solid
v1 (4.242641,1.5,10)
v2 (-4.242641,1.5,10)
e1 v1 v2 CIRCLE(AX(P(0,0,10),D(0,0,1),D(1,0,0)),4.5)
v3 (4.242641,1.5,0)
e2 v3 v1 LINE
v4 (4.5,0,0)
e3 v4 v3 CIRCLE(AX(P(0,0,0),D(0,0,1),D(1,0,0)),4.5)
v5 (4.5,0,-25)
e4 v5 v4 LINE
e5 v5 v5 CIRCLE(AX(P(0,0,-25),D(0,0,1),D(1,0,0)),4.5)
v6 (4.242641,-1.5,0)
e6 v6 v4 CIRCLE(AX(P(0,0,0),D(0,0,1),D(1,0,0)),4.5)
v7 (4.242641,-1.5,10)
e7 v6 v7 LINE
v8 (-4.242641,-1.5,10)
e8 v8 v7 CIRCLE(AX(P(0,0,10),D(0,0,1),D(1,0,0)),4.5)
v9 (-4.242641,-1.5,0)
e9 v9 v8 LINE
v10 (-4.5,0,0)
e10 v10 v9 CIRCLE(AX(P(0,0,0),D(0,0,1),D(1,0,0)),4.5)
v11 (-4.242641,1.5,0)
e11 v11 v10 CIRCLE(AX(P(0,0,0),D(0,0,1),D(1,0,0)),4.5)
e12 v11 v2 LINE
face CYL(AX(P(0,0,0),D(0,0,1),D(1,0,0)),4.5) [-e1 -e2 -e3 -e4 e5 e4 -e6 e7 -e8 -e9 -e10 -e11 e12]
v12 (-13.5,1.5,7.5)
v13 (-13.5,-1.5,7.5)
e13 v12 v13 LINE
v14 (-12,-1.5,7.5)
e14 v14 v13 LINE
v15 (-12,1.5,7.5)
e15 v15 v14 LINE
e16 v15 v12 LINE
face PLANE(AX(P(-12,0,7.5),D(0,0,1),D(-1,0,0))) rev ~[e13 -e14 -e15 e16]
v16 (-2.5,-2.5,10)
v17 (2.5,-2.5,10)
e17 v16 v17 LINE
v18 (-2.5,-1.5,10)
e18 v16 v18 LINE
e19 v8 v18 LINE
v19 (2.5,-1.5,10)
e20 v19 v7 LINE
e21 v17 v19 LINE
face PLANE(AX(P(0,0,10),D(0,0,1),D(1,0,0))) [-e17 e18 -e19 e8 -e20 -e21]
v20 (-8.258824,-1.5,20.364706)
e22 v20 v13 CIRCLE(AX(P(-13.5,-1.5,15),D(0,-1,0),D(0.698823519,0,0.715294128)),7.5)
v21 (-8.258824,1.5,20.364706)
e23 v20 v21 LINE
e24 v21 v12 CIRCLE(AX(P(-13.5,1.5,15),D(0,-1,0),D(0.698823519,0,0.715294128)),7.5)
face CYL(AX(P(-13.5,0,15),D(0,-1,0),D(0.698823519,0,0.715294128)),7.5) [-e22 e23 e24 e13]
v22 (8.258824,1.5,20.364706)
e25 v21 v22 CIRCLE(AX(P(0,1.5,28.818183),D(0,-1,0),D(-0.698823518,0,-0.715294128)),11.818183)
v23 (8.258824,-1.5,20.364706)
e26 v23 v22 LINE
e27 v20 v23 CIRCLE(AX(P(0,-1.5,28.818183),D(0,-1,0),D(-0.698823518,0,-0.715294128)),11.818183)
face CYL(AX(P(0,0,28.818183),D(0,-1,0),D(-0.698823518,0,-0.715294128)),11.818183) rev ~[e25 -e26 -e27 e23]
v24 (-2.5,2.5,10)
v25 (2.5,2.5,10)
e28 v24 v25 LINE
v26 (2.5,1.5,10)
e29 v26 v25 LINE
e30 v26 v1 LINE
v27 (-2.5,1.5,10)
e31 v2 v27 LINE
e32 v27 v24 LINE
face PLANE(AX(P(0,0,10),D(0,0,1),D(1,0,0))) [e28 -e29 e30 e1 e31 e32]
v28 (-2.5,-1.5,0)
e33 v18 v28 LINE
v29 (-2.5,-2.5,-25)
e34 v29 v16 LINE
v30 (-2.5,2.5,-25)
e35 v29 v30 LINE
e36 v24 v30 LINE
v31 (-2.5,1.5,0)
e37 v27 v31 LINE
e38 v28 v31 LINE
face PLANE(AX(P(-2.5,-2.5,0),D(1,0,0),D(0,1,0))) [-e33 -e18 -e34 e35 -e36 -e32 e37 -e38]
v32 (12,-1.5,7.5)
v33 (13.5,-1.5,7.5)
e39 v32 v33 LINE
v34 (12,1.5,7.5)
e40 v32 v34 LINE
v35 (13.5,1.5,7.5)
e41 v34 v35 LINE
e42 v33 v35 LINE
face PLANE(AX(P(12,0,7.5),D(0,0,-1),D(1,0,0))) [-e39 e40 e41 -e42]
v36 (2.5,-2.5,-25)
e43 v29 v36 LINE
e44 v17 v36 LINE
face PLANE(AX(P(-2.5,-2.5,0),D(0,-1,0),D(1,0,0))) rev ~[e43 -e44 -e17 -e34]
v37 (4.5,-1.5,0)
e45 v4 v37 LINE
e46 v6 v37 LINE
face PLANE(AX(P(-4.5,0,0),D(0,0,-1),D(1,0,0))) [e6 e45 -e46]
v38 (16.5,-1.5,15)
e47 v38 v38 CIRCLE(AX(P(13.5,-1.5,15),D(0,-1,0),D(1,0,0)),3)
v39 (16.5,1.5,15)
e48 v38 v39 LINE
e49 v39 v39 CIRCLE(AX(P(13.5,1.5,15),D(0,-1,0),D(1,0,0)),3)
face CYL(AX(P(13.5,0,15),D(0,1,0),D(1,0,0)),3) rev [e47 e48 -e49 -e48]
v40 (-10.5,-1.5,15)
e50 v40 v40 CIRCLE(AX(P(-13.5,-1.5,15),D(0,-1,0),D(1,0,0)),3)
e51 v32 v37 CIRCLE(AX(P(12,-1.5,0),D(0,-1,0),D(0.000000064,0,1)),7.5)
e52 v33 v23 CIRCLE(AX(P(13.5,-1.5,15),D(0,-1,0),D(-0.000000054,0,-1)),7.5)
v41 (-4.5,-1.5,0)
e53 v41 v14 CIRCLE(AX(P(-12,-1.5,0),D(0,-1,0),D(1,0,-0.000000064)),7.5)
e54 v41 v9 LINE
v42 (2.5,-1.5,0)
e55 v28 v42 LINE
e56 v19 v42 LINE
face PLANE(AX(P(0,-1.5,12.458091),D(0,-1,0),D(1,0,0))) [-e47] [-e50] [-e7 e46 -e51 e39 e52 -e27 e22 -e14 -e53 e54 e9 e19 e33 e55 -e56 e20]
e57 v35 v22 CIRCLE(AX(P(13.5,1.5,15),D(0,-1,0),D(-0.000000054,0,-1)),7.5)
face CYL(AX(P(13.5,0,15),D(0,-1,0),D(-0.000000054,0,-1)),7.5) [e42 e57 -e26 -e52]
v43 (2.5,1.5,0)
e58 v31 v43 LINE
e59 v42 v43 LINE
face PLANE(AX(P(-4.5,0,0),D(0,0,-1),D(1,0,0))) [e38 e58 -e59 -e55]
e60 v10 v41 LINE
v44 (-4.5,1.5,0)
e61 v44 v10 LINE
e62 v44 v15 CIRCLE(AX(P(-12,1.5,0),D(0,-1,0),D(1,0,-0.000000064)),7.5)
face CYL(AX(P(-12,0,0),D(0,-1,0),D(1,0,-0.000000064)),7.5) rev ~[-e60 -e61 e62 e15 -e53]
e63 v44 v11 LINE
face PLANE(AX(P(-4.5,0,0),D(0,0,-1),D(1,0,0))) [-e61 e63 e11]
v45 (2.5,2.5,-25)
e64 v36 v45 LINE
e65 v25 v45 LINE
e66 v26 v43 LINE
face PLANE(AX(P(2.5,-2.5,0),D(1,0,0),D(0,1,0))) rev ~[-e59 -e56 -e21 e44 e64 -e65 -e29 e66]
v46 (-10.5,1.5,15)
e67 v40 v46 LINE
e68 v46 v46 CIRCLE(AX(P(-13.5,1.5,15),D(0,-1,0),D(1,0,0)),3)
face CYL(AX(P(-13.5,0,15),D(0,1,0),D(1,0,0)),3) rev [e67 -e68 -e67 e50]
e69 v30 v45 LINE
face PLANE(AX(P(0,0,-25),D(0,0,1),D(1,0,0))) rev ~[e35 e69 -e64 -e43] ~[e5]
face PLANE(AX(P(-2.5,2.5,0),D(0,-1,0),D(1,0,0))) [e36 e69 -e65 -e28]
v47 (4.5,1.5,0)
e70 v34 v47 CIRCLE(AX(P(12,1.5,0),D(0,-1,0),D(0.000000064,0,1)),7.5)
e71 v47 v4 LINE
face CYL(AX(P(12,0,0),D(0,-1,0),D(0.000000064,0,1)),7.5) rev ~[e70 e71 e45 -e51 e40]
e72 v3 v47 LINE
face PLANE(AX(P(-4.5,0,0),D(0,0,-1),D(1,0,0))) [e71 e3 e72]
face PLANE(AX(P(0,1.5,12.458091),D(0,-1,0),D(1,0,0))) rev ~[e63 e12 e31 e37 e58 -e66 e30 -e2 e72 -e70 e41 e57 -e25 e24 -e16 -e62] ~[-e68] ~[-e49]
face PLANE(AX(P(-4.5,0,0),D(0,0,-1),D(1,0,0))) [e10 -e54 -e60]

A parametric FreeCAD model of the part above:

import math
import FreeCAD as App
import Part
import Sketcher
from FreeCAD import Vector
Q = App.Units.Quantity

doc = App.newDocument("Part")
body = doc.addObject("PartDesign::Body", "Body")

# Sketch on XY plane
sketch1 = body.newObject("Sketcher::SketchObject", "Sketch")
sketch1.AttachmentSupport = (doc.getObject("XY_Plane"), [""])
sketch1.MapMode = "FlatFace"
sketch1.addGeometry([
    Part.Circle(Vector(0, 0, 0), Vector(0, 0, 1), 4.5),  # 0
    Part.LineSegment(Vector(2.5, -2.5, 0), Vector(-2.5, -2.5, 0)),  # 1
    Part.LineSegment(Vector(-2.5, -2.5, 0), Vector(-2.5, 2.5, 0)),  # 2
    Part.LineSegment(Vector(-2.5, 2.5, 0), Vector(2.5, 2.5, 0)),  # 3
    Part.LineSegment(Vector(2.5, 2.5, 0), Vector(2.5, -2.5, 0)),  # 4
], False)
sketch1.addConstraint([
    Sketcher.Constraint("Coincident", 1, 2, 2, 1),
    Sketcher.Constraint("Coincident", 2, 2, 3, 1),
    Sketcher.Constraint("Coincident", 3, 2, 4, 1),
    Sketcher.Constraint("Coincident", 4, 2, 1, 1),
    Sketcher.Constraint("Horizontal", 1),
    Sketcher.Constraint("Vertical", 2),
    Sketcher.Constraint("Horizontal", 3),
    Sketcher.Constraint("Vertical", 4),
    Sketcher.Constraint("Coincident", 0, 3, -1, 1),
    Sketcher.Constraint("Symmetric", 1, 2, 3, 2, -1, 1),
    Sketcher.Constraint("Equal", 3, 2),
    Sketcher.Constraint("Diameter", 0, Q("9 mm")),
    Sketcher.Constraint("DistanceX", 1, 2, 1, 1, Q("5 mm")),
])
pad1 = body.newObject("PartDesign::Pad", "Pad")
pad1.Profile = sketch1
pad1.Type = "TwoLengths"
pad1.Length = 10
pad1.Length2 = 25

# Sketch on XZ plane
sketch2 = body.newObject("Sketcher::SketchObject", "Sketch001")
sketch2.AttachmentSupport = (doc.getObject("XZ_Plane"), [""])
sketch2.MapMode = "FlatFace"
sketch2.addGeometry([
    Part.ArcOfCircle(Part.Circle(Vector(-13.5, 15, 0), Vector(0, 0, 1), 7.5), math.radians(46), math.radians(270)),  # 0
    Part.LineSegment(Vector(-13.5, 7.5, 0), Vector(-12, 7.5, 0)),  # 1
    Part.ArcOfCircle(Part.Circle(Vector(-12, 0, 0), Vector(0, 0, 1), 7.5), math.radians(0), math.radians(90)),  # 2
    Part.LineSegment(Vector(-4.5, 0, 0), Vector(4.5, 0, 0)),  # 3
    Part.ArcOfCircle(Part.Circle(Vector(12, 0, 0), Vector(0, 0, 1), 7.5), math.radians(90), math.radians(180)),  # 4
    Part.LineSegment(Vector(12, 7.5, 0), Vector(13.5, 7.5, 0)),  # 5
    Part.ArcOfCircle(Part.Circle(Vector(13.5, 15, 0), Vector(0, 0, 1), 7.5), math.radians(-90), math.radians(134)),  # 6
    Part.ArcOfCircle(Part.Circle(Vector(0, 28.8, 0), Vector(0, 0, 1), 11.8), math.radians(-134), math.radians(-46)),  # 7
    Part.Circle(Vector(-13.5, 15, 0), Vector(0, 0, 1), 3),  # 8
    Part.Circle(Vector(13.5, 15, 0), Vector(0, 0, 1), 3),  # 9
], False)
sketch2.addConstraint([
    Sketcher.Constraint("Tangent", 0, 2, 1, 1),
    Sketcher.Constraint("Tangent", 1, 2, 2, 2),
    Sketcher.Constraint("Coincident", 2, 1, 3, 1),
    Sketcher.Constraint("Coincident", 3, 2, 4, 2),
    Sketcher.Constraint("Tangent", 4, 1, 5, 1),
    Sketcher.Constraint("Tangent", 5, 2, 6, 1),
    Sketcher.Constraint("Tangent", 6, 2, 7, 2),
    Sketcher.Constraint("Tangent", 7, 1, 0, 1),
    Sketcher.Constraint("Horizontal", 1),
    Sketcher.Constraint("Horizontal", 3),
    Sketcher.Constraint("Horizontal", 5),
    Sketcher.Constraint("Coincident", 8, 3, 0, 3),
    Sketcher.Constraint("Coincident", 9, 3, 6, 3),
    Sketcher.Constraint("Equal", 0, 2),
    Sketcher.Constraint("Equal", 2, 4),
    Sketcher.Constraint("Equal", 4, 6),
    Sketcher.Constraint("Equal", 8, 9),
    Sketcher.Constraint("Symmetric", 2, 3, 4, 3, -1, 1),
    Sketcher.Constraint("Symmetric", 0, 3, 6, 3, -2),
    Sketcher.Constraint("PointOnObject", 2, 1, -1),
    Sketcher.Constraint("Diameter", 8, Q("6 mm")),
    Sketcher.Constraint("Radius", 0, Q("7.5 mm")),
    Sketcher.Constraint("DistanceX", 3, 1, 3, 2, Q("9 mm")),
    Sketcher.Constraint("DistanceX", 1, 1, 1, 2, Q("1.5 mm")),
    Sketcher.Constraint("Radius", 7, Q("11.818183 mm")),
])
pad2 = body.newObject("PartDesign::Pad", "Pad001")
pad2.Profile = sketch2
pad2.Length = 3
pad2.Midplane = True

doc.recompute()
